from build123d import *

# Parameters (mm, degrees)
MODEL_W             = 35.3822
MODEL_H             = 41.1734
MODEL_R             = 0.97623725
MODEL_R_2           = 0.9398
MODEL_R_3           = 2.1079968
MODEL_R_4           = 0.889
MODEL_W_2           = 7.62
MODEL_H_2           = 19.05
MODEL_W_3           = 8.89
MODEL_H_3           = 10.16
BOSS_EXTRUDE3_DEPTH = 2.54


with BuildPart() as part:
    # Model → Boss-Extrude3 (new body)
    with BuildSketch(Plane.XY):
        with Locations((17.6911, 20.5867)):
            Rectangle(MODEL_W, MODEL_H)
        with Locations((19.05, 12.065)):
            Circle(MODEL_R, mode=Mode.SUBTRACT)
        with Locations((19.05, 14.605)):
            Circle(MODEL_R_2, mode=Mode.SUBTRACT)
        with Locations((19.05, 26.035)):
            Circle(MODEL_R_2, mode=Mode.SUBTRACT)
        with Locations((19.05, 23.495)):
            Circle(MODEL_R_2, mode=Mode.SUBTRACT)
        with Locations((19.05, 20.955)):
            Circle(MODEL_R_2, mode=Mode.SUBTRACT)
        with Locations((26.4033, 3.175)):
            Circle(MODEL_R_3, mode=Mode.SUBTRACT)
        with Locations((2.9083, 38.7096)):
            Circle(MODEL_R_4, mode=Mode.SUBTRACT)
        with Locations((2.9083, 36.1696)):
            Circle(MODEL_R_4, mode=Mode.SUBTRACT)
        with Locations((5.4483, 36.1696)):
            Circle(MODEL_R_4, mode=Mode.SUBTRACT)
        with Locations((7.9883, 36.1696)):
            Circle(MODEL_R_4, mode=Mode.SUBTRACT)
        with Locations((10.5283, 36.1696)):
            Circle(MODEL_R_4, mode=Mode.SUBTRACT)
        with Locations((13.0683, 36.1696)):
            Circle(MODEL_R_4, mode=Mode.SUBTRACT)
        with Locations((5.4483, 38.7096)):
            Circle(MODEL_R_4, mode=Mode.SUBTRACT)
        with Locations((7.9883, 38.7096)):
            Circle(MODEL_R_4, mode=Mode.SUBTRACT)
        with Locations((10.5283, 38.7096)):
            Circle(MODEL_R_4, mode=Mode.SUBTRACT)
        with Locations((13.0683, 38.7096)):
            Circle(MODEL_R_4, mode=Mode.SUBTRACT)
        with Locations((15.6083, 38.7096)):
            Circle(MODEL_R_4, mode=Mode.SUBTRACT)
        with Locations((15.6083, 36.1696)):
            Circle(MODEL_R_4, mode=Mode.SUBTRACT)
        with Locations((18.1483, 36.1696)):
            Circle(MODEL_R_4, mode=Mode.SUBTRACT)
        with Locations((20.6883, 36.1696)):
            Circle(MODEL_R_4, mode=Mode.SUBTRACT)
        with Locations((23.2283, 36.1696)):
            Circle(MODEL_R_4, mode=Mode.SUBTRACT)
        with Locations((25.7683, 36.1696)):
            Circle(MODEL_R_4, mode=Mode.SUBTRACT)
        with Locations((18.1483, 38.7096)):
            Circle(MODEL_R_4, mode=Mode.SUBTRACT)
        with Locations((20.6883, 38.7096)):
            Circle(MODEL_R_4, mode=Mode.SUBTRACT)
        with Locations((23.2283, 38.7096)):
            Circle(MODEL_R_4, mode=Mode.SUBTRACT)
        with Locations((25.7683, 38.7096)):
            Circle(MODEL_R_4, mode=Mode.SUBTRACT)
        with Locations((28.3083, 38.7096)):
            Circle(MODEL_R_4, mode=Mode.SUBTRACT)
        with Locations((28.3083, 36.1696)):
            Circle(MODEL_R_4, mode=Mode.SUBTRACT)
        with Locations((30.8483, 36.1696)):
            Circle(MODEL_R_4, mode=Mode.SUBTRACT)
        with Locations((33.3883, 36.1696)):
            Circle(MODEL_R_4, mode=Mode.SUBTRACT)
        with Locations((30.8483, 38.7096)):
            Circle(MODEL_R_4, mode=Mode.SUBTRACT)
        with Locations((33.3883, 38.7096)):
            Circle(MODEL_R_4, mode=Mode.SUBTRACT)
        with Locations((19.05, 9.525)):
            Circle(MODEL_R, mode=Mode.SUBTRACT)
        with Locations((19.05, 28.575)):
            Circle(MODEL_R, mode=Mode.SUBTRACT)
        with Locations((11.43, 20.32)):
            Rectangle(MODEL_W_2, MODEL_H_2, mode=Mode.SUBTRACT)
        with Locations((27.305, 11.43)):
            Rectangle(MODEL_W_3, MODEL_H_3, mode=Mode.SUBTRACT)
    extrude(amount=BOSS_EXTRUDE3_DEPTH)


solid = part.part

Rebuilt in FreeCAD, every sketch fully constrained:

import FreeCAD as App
import Part
import Sketcher
Q = App.Units.Quantity


def add_polygon(sketch, points):
    """Adds a closed chain of lines whose ends are joined by coincident constraints."""
    first, n = sketch.GeometryCount, len(points)
    for a, b in zip(points, points[1:] + points[:1]):
        sketch.addGeometry(Part.LineSegment(App.Vector(*a, 0), App.Vector(*b, 0)), False)
    for i in range(n):
        sketch.addConstraint(Sketcher.Constraint("Coincident", first + i, 2, first + (i + 1) % n, 1))

doc = App.newDocument("Part")
params = doc.addObject("Spreadsheet::Sheet", "Params")
for row, (alias, value) in enumerate([
    ("sketch1_diameter", "0.07 in"),
    ("sketch1_diameter2", "0.074 in"),
    ("sketch1_width", "0.3 in"),
    ("sketch1_height", "0.4 in"),
    ("sketch1_width2", "0.35 in"),
    ("pad1_length", "0.1 in"),
], start=1):
    params.set(f"A{row}", alias)
    params.set(f"B{row}", "=" + value)
    params.setAlias(f"B{row}", alias)

body = doc.addObject("PartDesign::Body", "Body")

# Sketch on XY plane
sketch1 = doc.addObject("Sketcher::SketchObject", "Sketch")
body.addObject(sketch1)
sketch1.AttachmentSupport = (doc.XY_Plane, [""])
sketch1.MapMode = "FlatFace"
add_polygon(sketch1, [(0, 41.2), (0, 0), (35.4, 0), (35.4, 41.2)])  # lines 0-3
add_polygon(sketch1, [(15.2, 10.8), (7.6, 10.8), (7.6, 29.8), (15.2, 29.8)])  # lines 4-7
sketch1.addGeometry(Part.Circle(App.Vector(19.1, 9.5, 0), App.Vector(0, 0, 1), 1), False)  # 8
sketch1.addGeometry(Part.Circle(App.Vector(26.4, 3.2, 0), App.Vector(0, 0, 1), 2.1), False)  # 9
sketch1.addGeometry(Part.Circle(App.Vector(19.1, 12.1, 0), App.Vector(0, 0, 1), 1), False)  # 10
sketch1.addGeometry(Part.Circle(App.Vector(19.1, 14.6, 0), App.Vector(0, 0, 1), 0.9), False)  # 11
add_polygon(sketch1, [(31.8, 6.3), (22.9, 6.3), (22.9, 16.5), (31.8, 16.5)])  # lines 12-15
sketch1.addGeometry(Part.Circle(App.Vector(2.9, 36.2, 0), App.Vector(0, 0, 1), 0.9), False)  # 16
sketch1.addGeometry(Part.Circle(App.Vector(5.4, 36.2, 0), App.Vector(0, 0, 1), 0.9), False)  # 17
sketch1.addGeometry(Part.Circle(App.Vector(2.9, 38.7, 0), App.Vector(0, 0, 1), 0.9), False)  # 18
sketch1.addGeometry(Part.Circle(App.Vector(5.4, 38.7, 0), App.Vector(0, 0, 1), 0.9), False)  # 19
sketch1.addGeometry(Part.Circle(App.Vector(8, 36.2, 0), App.Vector(0, 0, 1), 0.9), False)  # 20
sketch1.addGeometry(Part.Circle(App.Vector(8, 38.7, 0), App.Vector(0, 0, 1), 0.9), False)  # 21
sketch1.addGeometry(Part.Circle(App.Vector(10.5, 36.2, 0), App.Vector(0, 0, 1), 0.9), False)  # 22
sketch1.addGeometry(Part.Circle(App.Vector(13.1, 36.2, 0), App.Vector(0, 0, 1), 0.9), False)  # 23
sketch1.addGeometry(Part.Circle(App.Vector(10.5, 38.7, 0), App.Vector(0, 0, 1), 0.9), False)  # 24
sketch1.addGeometry(Part.Circle(App.Vector(13.1, 38.7, 0), App.Vector(0, 0, 1), 0.9), False)  # 25
sketch1.addGeometry(Part.Circle(App.Vector(15.6, 36.2, 0), App.Vector(0, 0, 1), 0.9), False)  # 26
sketch1.addGeometry(Part.Circle(App.Vector(15.6, 38.7, 0), App.Vector(0, 0, 1), 0.9), False)  # 27
sketch1.addGeometry(Part.Circle(App.Vector(19.1, 21, 0), App.Vector(0, 0, 1), 0.9), False)  # 28
sketch1.addGeometry(Part.Circle(App.Vector(19.1, 23.5, 0), App.Vector(0, 0, 1), 0.9), False)  # 29
sketch1.addGeometry(Part.Circle(App.Vector(19.1, 26, 0), App.Vector(0, 0, 1), 0.9), False)  # 30
sketch1.addGeometry(Part.Circle(App.Vector(19.1, 28.6, 0), App.Vector(0, 0, 1), 1), False)  # 31
sketch1.addGeometry(Part.Circle(App.Vector(18.1, 36.2, 0), App.Vector(0, 0, 1), 0.9), False)  # 32
sketch1.addGeometry(Part.Circle(App.Vector(20.7, 36.2, 0), App.Vector(0, 0, 1), 0.9), False)  # 33
sketch1.addGeometry(Part.Circle(App.Vector(18.1, 38.7, 0), App.Vector(0, 0, 1), 0.9), False)  # 34
sketch1.addGeometry(Part.Circle(App.Vector(20.7, 38.7, 0), App.Vector(0, 0, 1), 0.9), False)  # 35
sketch1.addGeometry(Part.Circle(App.Vector(23.2, 36.2, 0), App.Vector(0, 0, 1), 0.9), False)  # 36
sketch1.addGeometry(Part.Circle(App.Vector(25.8, 36.2, 0), App.Vector(0, 0, 1), 0.9), False)  # 37
sketch1.addGeometry(Part.Circle(App.Vector(23.2, 38.7, 0), App.Vector(0, 0, 1), 0.9), False)  # 38
sketch1.addGeometry(Part.Circle(App.Vector(25.8, 38.7, 0), App.Vector(0, 0, 1), 0.9), False)  # 39
sketch1.addGeometry(Part.Circle(App.Vector(28.3, 36.2, 0), App.Vector(0, 0, 1), 0.9), False)  # 40
sketch1.addGeometry(Part.Circle(App.Vector(28.3, 38.7, 0), App.Vector(0, 0, 1), 0.9), False)  # 41
sketch1.addGeometry(Part.Circle(App.Vector(30.8, 36.2, 0), App.Vector(0, 0, 1), 0.9), False)  # 42
sketch1.addGeometry(Part.Circle(App.Vector(33.4, 36.2, 0), App.Vector(0, 0, 1), 0.9), False)  # 43
sketch1.addGeometry(Part.Circle(App.Vector(30.8, 38.7, 0), App.Vector(0, 0, 1), 0.9), False)  # 44
sketch1.addGeometry(Part.Circle(App.Vector(33.4, 38.7, 0), App.Vector(0, 0, 1), 0.9), False)  # 45
sketch1.addConstraint([
    Sketcher.Constraint("Vertical", 0),
    Sketcher.Constraint("Horizontal", 1),
    Sketcher.Constraint("Vertical", 2),
    Sketcher.Constraint("Horizontal", 3),
    Sketcher.Constraint("Horizontal", 4),
    Sketcher.Constraint("Vertical", 5),
    Sketcher.Constraint("Horizontal", 6),
    Sketcher.Constraint("Vertical", 7),
    Sketcher.Constraint("Horizontal", 12),
    Sketcher.Constraint("Vertical", 13),
    Sketcher.Constraint("Horizontal", 14),
    Sketcher.Constraint("Vertical", 15),
    Sketcher.Constraint("Coincident", 0, 2, -1, 1),
    Sketcher.Constraint("Equal", 8, 10),
    Sketcher.Constraint("Equal", 16, 17),
    Sketcher.Constraint("Equal", 17, 18),
    Sketcher.Constraint("Equal", 18, 19),
    Sketcher.Constraint("Equal", 19, 20),
    Sketcher.Constraint("Equal", 20, 21),
    Sketcher.Constraint("Equal", 21, 22),
    Sketcher.Constraint("Equal", 22, 23),
    Sketcher.Constraint("Equal", 23, 24),
    Sketcher.Constraint("Equal", 24, 25),
    Sketcher.Constraint("Equal", 25, 26),
    Sketcher.Constraint("Equal", 26, 27),
    Sketcher.Constraint("Equal", 11, 28),
    Sketcher.Constraint("Equal", 28, 29),
    Sketcher.Constraint("Equal", 29, 30),
    Sketcher.Constraint("Equal", 10, 31),
    Sketcher.Constraint("Equal", 27, 32),
    Sketcher.Constraint("Equal", 32, 33),
    Sketcher.Constraint("Equal", 33, 34),
    Sketcher.Constraint("Equal", 34, 35),
    Sketcher.Constraint("Equal", 35, 36),
    Sketcher.Constraint("Equal", 36, 37),
    Sketcher.Constraint("Equal", 37, 38),
    Sketcher.Constraint("Equal", 38, 39),
    Sketcher.Constraint("Equal", 39, 40),
    Sketcher.Constraint("Equal", 40, 41),
    Sketcher.Constraint("Equal", 41, 42),
    Sketcher.Constraint("Equal", 42, 43),
    Sketcher.Constraint("Equal", 43, 44),
    Sketcher.Constraint("Equal", 44, 45),
    Sketcher.Constraint("Horizontal", 16, 3, 17, 3),
    Sketcher.Constraint("Horizontal", 18, 3, 19, 3),
    Sketcher.Constraint("Horizontal", 17, 3, 20, 3),
    Sketcher.Constraint("Horizontal", 19, 3, 21, 3),
    Sketcher.Constraint("Horizontal", 20, 3, 22, 3),
    Sketcher.Constraint("Horizontal", 22, 3, 23, 3),
    Sketcher.Constraint("Horizontal", 21, 3, 24, 3),
    Sketcher.Constraint("Horizontal", 24, 3, 25, 3),
    Sketcher.Constraint("Horizontal", 23, 3, 26, 3),
    Sketcher.Constraint("Horizontal", 25, 3, 27, 3),
    Sketcher.Constraint("Horizontal", 26, 3, 32, 3),
    Sketcher.Constraint("Horizontal", 32, 3, 33, 3),
    Sketcher.Constraint("Horizontal", 27, 3, 34, 3),
    Sketcher.Constraint("Horizontal", 34, 3, 35, 3),
    Sketcher.Constraint("Horizontal", 33, 3, 36, 3),
    Sketcher.Constraint("Horizontal", 36, 3, 37, 3),
    Sketcher.Constraint("Horizontal", 35, 3, 38, 3),
    Sketcher.Constraint("Horizontal", 38, 3, 39, 3),
    Sketcher.Constraint("Horizontal", 37, 3, 40, 3),
    Sketcher.Constraint("Horizontal", 39, 3, 41, 3),
    Sketcher.Constraint("Horizontal", 40, 3, 42, 3),
    Sketcher.Constraint("Horizontal", 42, 3, 43, 3),
    Sketcher.Constraint("Horizontal", 41, 3, 44, 3),
    Sketcher.Constraint("Horizontal", 44, 3, 45, 3),
    Sketcher.Constraint("Vertical", 8, 3, 10, 3),
    Sketcher.Constraint("Vertical", 10, 3, 11, 3),
    Sketcher.Constraint("Vertical", 16, 3, 18, 3),
    Sketcher.Constraint("Vertical", 17, 3, 19, 3),
    Sketcher.Constraint("Vertical", 20, 3, 21, 3),
    Sketcher.Constraint("Vertical", 22, 3, 24, 3),
    Sketcher.Constraint("Vertical", 23, 3, 25, 3),
    Sketcher.Constraint("Vertical", 26, 3, 27, 3),
    Sketcher.Constraint("Vertical", 11, 3, 28, 3),
    Sketcher.Constraint("Vertical", 28, 3, 29, 3),
    Sketcher.Constraint("Vertical", 29, 3, 30, 3),
    Sketcher.Constraint("Vertical", 30, 3, 31, 3),
    Sketcher.Constraint("Vertical", 32, 3, 34, 3),
    Sketcher.Constraint("Vertical", 33, 3, 35, 3),
    Sketcher.Constraint("Vertical", 36, 3, 38, 3),
    Sketcher.Constraint("Vertical", 37, 3, 39, 3),
    Sketcher.Constraint("Vertical", 40, 3, 41, 3),
    Sketcher.Constraint("Vertical", 42, 3, 44, 3),
    Sketcher.Constraint("Vertical", 43, 3, 45, 3),
    Sketcher.Constraint("Diameter", 16, Q("0.07 in")),
    Sketcher.Constraint("Diameter", 11, Q("0.074 in")),
    Sketcher.Constraint("DistanceX", 4, 2, 4, 1, Q("0.3 in")),
    Sketcher.Constraint("DistanceY", 13, 1, 13, 2, Q("0.4 in")),
    Sketcher.Constraint("DistanceX", 12, 2, 12, 1, Q("0.35 in")),
    Sketcher.Constraint("DistanceY", 5, 1, 5, 2, Q("0.75 in")),
    Sketcher.Constraint("DistanceX", -1, 1, 4, 2, Q("0.3 in")),
    Sketcher.Constraint("DistanceX", -1, 1, 12, 2, Q("0.9 in")),
    Sketcher.Constraint("DistanceY", 8, 3, 10, 3, Q("0.1 in")),
    Sketcher.Constraint("DistanceY", 10, 3, 11, 3, Q("0.1 in")),
    Sketcher.Constraint("DistanceX", 16, 3, 17, 3, Q("0.1 in")),
    Sketcher.Constraint("DistanceY", 16, 3, 18, 3, Q("0.1 in")),
    Sketcher.Constraint("DistanceX", 17, 3, 20, 3, Q("0.1 in")),
    Sketcher.Constraint("DistanceX", 20, 3, 22, 3, Q("0.1 in")),
    Sketcher.Constraint("DistanceX", 22, 3, 23, 3, Q("0.1 in")),
    Sketcher.Constraint("DistanceX", 23, 3, 26, 3, Q("0.1 in")),
    Sketcher.Constraint("DistanceY", 28, 3, 29, 3, Q("0.1 in")),
    Sketcher.Constraint("DistanceY", 29, 3, 30, 3, Q("0.1 in")),
    Sketcher.Constraint("DistanceY", 30, 3, 31, 3, Q("0.1 in")),
    Sketcher.Constraint("DistanceX", 26, 3, 32, 3, Q("0.1 in")),
    Sketcher.Constraint("DistanceX", 32, 3, 33, 3, Q("0.1 in")),
    Sketcher.Constraint("DistanceX", 33, 3, 36, 3, Q("0.1 in")),
    Sketcher.Constraint("DistanceX", 36, 3, 37, 3, Q("0.1 in")),
    Sketcher.Constraint("DistanceX", 37, 3, 40, 3, Q("0.1 in")),
    Sketcher.Constraint("DistanceX", 40, 3, 42, 3, Q("0.1 in")),
    Sketcher.Constraint("DistanceX", 42, 3, 43, 3, Q("0.1 in")),
    Sketcher.Constraint("DistanceY", 4, 2, 28, 3, Q("0.4 in")),
    Sketcher.Constraint("DistanceX", 11, 3, 14, 2, Q("0.5 in")),
    Sketcher.Constraint("DistanceX", 1, 1, 1, 2, Q("1.393 in")),
    Sketcher.Constraint("DistanceY", 0, 2, 0, 1, Q("1.621 in")),
    Sketcher.Constraint("DistanceY", -1, 1, 12, 2, Q("0.25 in")),
    Sketcher.Constraint("DistanceY", 9, 3, 8, 3, Q("0.25 in")),
    Sketcher.Constraint("DistanceY", 11, 3, 28, 3, Q("0.25 in")),
    Sketcher.Constraint("DistanceY", -1, 1, 8, 3, Q("0.375 in")),
    Sketcher.Constraint("DistanceY", -1, 1, 16, 3, Q("1.424 in")),
    Sketcher.Constraint("DistanceX", 16, 3, 9, 3, Q("0.925 in")),
    Sketcher.Constraint("Diameter", 8, Q("1.952474 mm")),
    Sketcher.Constraint("Diameter", 9, Q("4.215994 mm")),
    Sketcher.Constraint("DistanceX", -1, 1, 9, 3, Q("1.0395 in")),
])
sketch1.setExpression("Constraints[98]", "Params.sketch1_diameter")
sketch1.setExpression("Constraints[99]", "Params.sketch1_diameter2")
sketch1.setExpression("Constraints[100]", "Params.sketch1_width")
sketch1.setExpression("Constraints[101]", "Params.sketch1_height")
sketch1.setExpression("Constraints[102]", "Params.sketch1_width2")
pad1 = doc.addObject("PartDesign::Pad", "Pad")
body.addObject(pad1)
pad1.Profile = sketch1
pad1.setExpression("Length", "Params.pad1_length")

doc.recompute()
